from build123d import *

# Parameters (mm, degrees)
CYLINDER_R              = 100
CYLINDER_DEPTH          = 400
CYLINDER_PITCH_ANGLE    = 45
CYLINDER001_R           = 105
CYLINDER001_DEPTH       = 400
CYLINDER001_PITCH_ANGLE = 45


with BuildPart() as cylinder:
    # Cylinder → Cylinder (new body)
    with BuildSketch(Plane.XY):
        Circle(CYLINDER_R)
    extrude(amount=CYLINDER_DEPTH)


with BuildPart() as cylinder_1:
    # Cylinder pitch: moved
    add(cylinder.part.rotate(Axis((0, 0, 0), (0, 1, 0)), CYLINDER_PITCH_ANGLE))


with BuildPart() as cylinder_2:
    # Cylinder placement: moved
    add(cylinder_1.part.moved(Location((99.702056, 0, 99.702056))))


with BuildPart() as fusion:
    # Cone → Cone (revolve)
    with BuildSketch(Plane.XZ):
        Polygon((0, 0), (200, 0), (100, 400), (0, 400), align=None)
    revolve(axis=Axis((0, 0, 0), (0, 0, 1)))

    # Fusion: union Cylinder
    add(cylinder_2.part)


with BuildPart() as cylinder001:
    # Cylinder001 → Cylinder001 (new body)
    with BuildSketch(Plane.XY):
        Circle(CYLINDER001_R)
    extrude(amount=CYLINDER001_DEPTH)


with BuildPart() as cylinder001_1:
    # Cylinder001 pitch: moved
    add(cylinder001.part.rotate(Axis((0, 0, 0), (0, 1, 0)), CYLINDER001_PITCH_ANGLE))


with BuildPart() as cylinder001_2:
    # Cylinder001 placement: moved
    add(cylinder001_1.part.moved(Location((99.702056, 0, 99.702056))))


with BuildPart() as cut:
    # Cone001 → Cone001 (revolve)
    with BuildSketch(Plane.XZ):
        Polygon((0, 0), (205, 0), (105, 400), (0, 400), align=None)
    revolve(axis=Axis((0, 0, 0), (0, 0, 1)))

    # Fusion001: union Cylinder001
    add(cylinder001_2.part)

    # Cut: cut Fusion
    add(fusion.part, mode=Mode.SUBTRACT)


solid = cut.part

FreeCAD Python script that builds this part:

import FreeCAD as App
import Part
import Sketcher
Q = App.Units.Quantity

doc = App.newDocument("Part")
params = doc.addObject("Spreadsheet::Sheet", "Params")
for row, (alias, value) in enumerate([
    ("sketch1_diameter", "200 mm"),
    ("pad1_length", "400 mm"),
    ("sketch2_width", "200 mm"),
    ("sketch2_width2", "100 mm"),
    ("sketch2_height", "400 mm"),
    ("revolution_angle", "360 deg"),
    ("sketch3_diameter", "210 mm"),
    ("pad2_length", "400 mm"),
    ("sketch4_width", "205 mm"),
    ("sketch4_width2", "105 mm"),
    ("sketch4_height", "400 mm"),
    ("revolution2_angle", "360 deg"),
], start=1):
    params.set(f"A{row}", alias)
    params.set(f"B{row}", "=" + value)
    params.setAlias(f"B{row}", alias)

body = doc.addObject("PartDesign::Body", "Body")

# Sketch on XY plane
sketch1 = body.newObject("Sketcher::SketchObject", "Sketch")
sketch1.AttachmentSupport = (doc.getObject("XY_Plane"), [""])
sketch1.MapMode = "FlatFace"
sketch1.addGeometry(Part.Circle(App.Vector(0, 0, 0), App.Vector(0, 0, 1), 100), False)
sketch1.addConstraint(Sketcher.Constraint("Coincident", 0, 3, -1, 1))
sketch1.addConstraint(Sketcher.Constraint("Diameter", 0, Q("200 mm")))
sketch1.setExpression("Constraints[1]", "Params.sketch1_diameter")
pad1 = body.newObject("PartDesign::Pad", "Pad")
pad1.Profile = sketch1
pad1.setExpression("Length", "Params.pad1_length")
body2 = doc.addObject("PartDesign::Body", "Body001")
doc.recompute()

body.Placement = App.Placement(App.Vector(0, 0, 0), App.Rotation(App.Vector(0, 1, 0), 45))
boolean = body2.newObject("PartDesign::Boolean", "Boolean")
boolean.Type = "Fuse"
boolean.addObjects([body])
body3 = doc.addObject("PartDesign::Body", "Body002")
doc.recompute()

body2.Placement = App.Placement(App.Vector(99.702056, 0, 99.702056), App.Rotation(App.Vector(0, 0, 1), 0))
boolean2 = body3.newObject("PartDesign::Boolean", "Boolean001")
boolean2.Type = "Fuse"
boolean2.addObjects([body2])
body4 = doc.addObject("PartDesign::Body", "Body003")

# Sketch on XZ plane
sketch2 = body4.newObject("Sketcher::SketchObject", "Sketch001")
sketch2.AttachmentSupport = (doc.getObject("XZ_Plane003"), [""])
sketch2.MapMode = "FlatFace"
sketch2.addGeometry(Part.LineSegment(App.Vector(0, 0, 0), App.Vector(200, 0, 0)), False)
sketch2.addGeometry(Part.LineSegment(App.Vector(200, 0, 0), App.Vector(100, 400, 0)), False)
sketch2.addGeometry(Part.LineSegment(App.Vector(100, 400, 0), App.Vector(0, 400, 0)), False)
sketch2.addGeometry(Part.LineSegment(App.Vector(0, 400, 0), App.Vector(0, 0, 0)), False)
sketch2.addConstraint(Sketcher.Constraint("Coincident", 0, 2, 1, 1))
sketch2.addConstraint(Sketcher.Constraint("Coincident", 1, 2, 2, 1))
sketch2.addConstraint(Sketcher.Constraint("Coincident", 2, 2, 3, 1))
sketch2.addConstraint(Sketcher.Constraint("Coincident", 3, 2, 0, 1))
sketch2.addConstraint(Sketcher.Constraint("Horizontal", 0))
sketch2.addConstraint(Sketcher.Constraint("Horizontal", 2))
sketch2.addConstraint(Sketcher.Constraint("Vertical", 3))
sketch2.addConstraint(Sketcher.Constraint("Coincident", 3, 2, -1, 1))
sketch2.addConstraint(Sketcher.Constraint("DistanceX", 0, 1, 0, 2, Q("200 mm")))
sketch2.addConstraint(Sketcher.Constraint("DistanceX", 2, 2, 2, 1, Q("100 mm")))
sketch2.addConstraint(Sketcher.Constraint("DistanceY", 3, 2, 3, 1, Q("400 mm")))
sketch2.setExpression("Constraints[8]", "Params.sketch2_width")
sketch2.setExpression("Constraints[9]", "Params.sketch2_width2")
sketch2.setExpression("Constraints[10]", "Params.sketch2_height")
revolution = body4.newObject("PartDesign::Revolution", "Revolution")
revolution.Profile = sketch2
revolution.ReferenceAxis = (sketch2, ["V_Axis"])
revolution.setExpression("Angle", "Params.revolution_angle")
doc.recompute()

boolean3 = body4.newObject("PartDesign::Boolean", "Boolean002")
boolean3.Type = "Fuse"
boolean3.addObjects([body3])
body5 = doc.addObject("PartDesign::Body", "Body004")

# Sketch on XY plane
sketch3 = body5.newObject("Sketcher::SketchObject", "Sketch002")
sketch3.AttachmentSupport = (doc.getObject("XY_Plane004"), [""])
sketch3.MapMode = "FlatFace"
sketch3.addGeometry(Part.Circle(App.Vector(0, 0, 0), App.Vector(0, 0, 1), 105), False)
sketch3.addConstraint(Sketcher.Constraint("Coincident", 0, 3, -1, 1))
sketch3.addConstraint(Sketcher.Constraint("Diameter", 0, Q("210 mm")))
sketch3.setExpression("Constraints[1]", "Params.sketch3_diameter")
pad2 = body5.newObject("PartDesign::Pad", "Pad001")
pad2.Profile = sketch3
pad2.setExpression("Length", "Params.pad2_length")
body6 = doc.addObject("PartDesign::Body", "Body005")
doc.recompute()

body5.Placement = App.Placement(App.Vector(0, 0, 0), App.Rotation(App.Vector(0, 1, 0), 45))
boolean4 = body6.newObject("PartDesign::Boolean", "Boolean003")
boolean4.Type = "Fuse"
boolean4.addObjects([body5])
body7 = doc.addObject("PartDesign::Body", "Body006")
doc.recompute()

body6.Placement = App.Placement(App.Vector(99.702056, 0, 99.702056), App.Rotation(App.Vector(0, 0, 1), 0))
boolean5 = body7.newObject("PartDesign::Boolean", "Boolean004")
boolean5.Type = "Fuse"
boolean5.addObjects([body6])
body8 = doc.addObject("PartDesign::Body", "Body007")

# Sketch on XZ plane
sketch4 = body8.newObject("Sketcher::SketchObject", "Sketch003")
sketch4.AttachmentSupport = (doc.getObject("XZ_Plane007"), [""])
sketch4.MapMode = "FlatFace"
sketch4.addGeometry(Part.LineSegment(App.Vector(0, 0, 0), App.Vector(205, 0, 0)), False)
sketch4.addGeometry(Part.LineSegment(App.Vector(205, 0, 0), App.Vector(105, 400, 0)), False)
sketch4.addGeometry(Part.LineSegment(App.Vector(105, 400, 0), App.Vector(0, 400, 0)), False)
sketch4.addGeometry(Part.LineSegment(App.Vector(0, 400, 0), App.Vector(0, 0, 0)), False)
sketch4.addConstraint(Sketcher.Constraint("Coincident", 0, 2, 1, 1))
sketch4.addConstraint(Sketcher.Constraint("Coincident", 1, 2, 2, 1))
sketch4.addConstraint(Sketcher.Constraint("Coincident", 2, 2, 3, 1))
sketch4.addConstraint(Sketcher.Constraint("Coincident", 3, 2, 0, 1))
sketch4.addConstraint(Sketcher.Constraint("Horizontal", 0))
sketch4.addConstraint(Sketcher.Constraint("Horizontal", 2))
sketch4.addConstraint(Sketcher.Constraint("Vertical", 3))
sketch4.addConstraint(Sketcher.Constraint("Coincident", 3, 2, -1, 1))
sketch4.addConstraint(Sketcher.Constraint("DistanceX", 0, 1, 0, 2, Q("205 mm")))
sketch4.addConstraint(Sketcher.Constraint("DistanceX", 2, 2, 2, 1, Q("105 mm")))
sketch4.addConstraint(Sketcher.Constraint("DistanceY", 3, 2, 3, 1, Q("400 mm")))
sketch4.setExpression("Constraints[8]", "Params.sketch4_width")
sketch4.setExpression("Constraints[9]", "Params.sketch4_width2")
sketch4.setExpression("Constraints[10]", "Params.sketch4_height")
revolution2 = body8.newObject("PartDesign::Revolution", "Revolution001")
revolution2.Profile = sketch4
revolution2.ReferenceAxis = (sketch4, ["V_Axis"])
revolution2.setExpression("Angle", "Params.revolution2_angle")
doc.recompute()

boolean6 = body8.newObject("PartDesign::Boolean", "Boolean005")
boolean6.Type = "Fuse"
boolean6.addObjects([body7])
doc.recompute()

boolean7 = body8.newObject("PartDesign::Boolean", "Boolean006")
boolean7.Type = "Cut"
boolean7.addObjects([body4])

doc.recompute()
